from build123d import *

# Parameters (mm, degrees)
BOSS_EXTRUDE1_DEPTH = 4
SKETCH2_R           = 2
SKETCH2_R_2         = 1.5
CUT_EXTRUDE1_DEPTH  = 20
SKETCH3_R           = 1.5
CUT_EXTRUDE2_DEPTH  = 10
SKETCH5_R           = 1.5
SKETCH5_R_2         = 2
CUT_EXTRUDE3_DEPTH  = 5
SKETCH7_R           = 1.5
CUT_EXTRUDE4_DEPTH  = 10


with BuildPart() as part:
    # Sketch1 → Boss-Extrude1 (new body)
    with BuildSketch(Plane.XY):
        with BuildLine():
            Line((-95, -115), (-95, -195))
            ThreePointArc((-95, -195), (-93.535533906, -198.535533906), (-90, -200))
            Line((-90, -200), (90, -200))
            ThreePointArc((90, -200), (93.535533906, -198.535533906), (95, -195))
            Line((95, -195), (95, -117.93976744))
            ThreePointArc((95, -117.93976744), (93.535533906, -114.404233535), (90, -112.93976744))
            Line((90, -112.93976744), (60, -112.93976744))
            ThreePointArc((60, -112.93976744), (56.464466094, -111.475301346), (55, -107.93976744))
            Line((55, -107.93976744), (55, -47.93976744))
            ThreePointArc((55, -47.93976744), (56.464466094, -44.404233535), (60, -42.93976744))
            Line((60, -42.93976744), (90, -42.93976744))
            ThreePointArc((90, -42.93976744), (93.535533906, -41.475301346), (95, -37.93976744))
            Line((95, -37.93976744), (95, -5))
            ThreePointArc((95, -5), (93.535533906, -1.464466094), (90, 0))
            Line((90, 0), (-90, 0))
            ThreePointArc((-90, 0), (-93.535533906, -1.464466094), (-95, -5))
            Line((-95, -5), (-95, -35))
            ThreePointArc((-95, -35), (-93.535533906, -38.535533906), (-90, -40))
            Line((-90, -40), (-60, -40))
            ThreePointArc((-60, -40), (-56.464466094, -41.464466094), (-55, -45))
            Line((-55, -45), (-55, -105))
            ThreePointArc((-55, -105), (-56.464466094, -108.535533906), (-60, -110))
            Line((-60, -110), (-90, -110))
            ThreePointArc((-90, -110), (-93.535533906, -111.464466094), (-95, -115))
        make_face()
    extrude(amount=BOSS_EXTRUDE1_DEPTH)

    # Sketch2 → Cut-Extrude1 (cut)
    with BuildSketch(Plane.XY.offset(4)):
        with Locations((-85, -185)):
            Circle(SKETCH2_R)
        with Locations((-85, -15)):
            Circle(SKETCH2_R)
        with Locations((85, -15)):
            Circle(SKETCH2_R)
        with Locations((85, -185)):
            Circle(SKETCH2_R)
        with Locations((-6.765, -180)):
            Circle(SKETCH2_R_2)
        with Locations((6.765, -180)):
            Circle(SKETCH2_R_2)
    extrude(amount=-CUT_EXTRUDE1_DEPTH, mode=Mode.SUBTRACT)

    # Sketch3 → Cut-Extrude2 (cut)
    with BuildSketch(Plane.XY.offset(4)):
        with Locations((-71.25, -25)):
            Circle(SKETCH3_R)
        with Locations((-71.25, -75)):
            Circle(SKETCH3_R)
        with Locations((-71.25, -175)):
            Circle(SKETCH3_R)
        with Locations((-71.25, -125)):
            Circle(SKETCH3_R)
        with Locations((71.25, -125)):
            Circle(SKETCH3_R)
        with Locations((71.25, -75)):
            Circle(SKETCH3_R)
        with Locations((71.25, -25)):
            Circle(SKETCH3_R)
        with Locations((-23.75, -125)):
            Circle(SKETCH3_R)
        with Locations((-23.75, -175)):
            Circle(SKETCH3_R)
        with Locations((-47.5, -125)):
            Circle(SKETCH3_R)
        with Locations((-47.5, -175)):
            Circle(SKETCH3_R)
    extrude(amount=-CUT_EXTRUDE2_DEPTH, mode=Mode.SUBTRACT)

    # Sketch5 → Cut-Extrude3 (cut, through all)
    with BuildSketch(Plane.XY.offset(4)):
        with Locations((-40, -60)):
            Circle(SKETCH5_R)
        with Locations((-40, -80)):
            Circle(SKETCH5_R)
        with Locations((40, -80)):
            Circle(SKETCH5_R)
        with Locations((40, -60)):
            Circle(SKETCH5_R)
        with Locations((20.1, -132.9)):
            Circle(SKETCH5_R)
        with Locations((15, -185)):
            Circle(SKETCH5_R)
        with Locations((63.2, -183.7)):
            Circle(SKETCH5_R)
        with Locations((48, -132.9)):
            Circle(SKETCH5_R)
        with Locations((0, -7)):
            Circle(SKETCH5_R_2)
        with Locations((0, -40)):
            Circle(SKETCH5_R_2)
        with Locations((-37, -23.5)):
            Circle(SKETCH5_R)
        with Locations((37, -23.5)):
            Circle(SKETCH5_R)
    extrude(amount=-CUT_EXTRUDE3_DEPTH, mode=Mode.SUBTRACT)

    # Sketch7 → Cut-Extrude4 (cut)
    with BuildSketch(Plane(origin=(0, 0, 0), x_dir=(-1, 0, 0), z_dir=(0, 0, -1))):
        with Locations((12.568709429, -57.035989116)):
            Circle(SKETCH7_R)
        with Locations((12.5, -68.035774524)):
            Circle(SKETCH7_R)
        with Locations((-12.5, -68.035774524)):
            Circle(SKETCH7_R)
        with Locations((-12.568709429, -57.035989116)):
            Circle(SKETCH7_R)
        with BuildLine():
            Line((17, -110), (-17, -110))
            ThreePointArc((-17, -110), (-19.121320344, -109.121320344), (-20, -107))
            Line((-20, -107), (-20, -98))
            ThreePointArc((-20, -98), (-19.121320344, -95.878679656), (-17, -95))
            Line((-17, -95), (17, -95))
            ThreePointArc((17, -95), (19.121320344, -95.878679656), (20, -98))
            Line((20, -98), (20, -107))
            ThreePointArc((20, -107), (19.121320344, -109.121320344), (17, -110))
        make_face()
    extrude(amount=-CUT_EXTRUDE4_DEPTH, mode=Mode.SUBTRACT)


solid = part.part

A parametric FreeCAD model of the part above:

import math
import FreeCAD as App
import Part
import Sketcher

doc = App.newDocument("Part")
body = doc.addObject("PartDesign::Body", "Body")

# Sketch on XY plane
sketch1 = body.newObject("Sketcher::SketchObject", "Sketch")
sketch1.AttachmentSupport = (doc.getObject("XY_Plane"), [""])
sketch1.MapMode = "FlatFace"
sketch1.addGeometry(Part.LineSegment(App.Vector(-95, -115, 0), App.Vector(-95, -195, 0)), False)
sketch1.addGeometry(Part.ArcOfCircle(Part.Circle(App.Vector(-90, -195, 0), App.Vector(0, 0, 1), 5), math.radians(180), math.radians(270)), False)
sketch1.addGeometry(Part.LineSegment(App.Vector(-90, -200, 0), App.Vector(90, -200, 0)), False)
sketch1.addGeometry(Part.ArcOfCircle(Part.Circle(App.Vector(90, -195, 0), App.Vector(0, 0, 1), 5), math.radians(-90), math.radians(0)), False)
sketch1.addGeometry(Part.LineSegment(App.Vector(95, -195, 0), App.Vector(95, -118, 0)), False)
sketch1.addGeometry(Part.ArcOfCircle(Part.Circle(App.Vector(90, -118, 0), App.Vector(0, 0, 1), 5), math.radians(0), math.radians(90)), False)
sketch1.addGeometry(Part.LineSegment(App.Vector(90, -113, 0), App.Vector(60, -113, 0)), False)
sketch1.addGeometry(Part.ArcOfCircle(Part.Circle(App.Vector(60, -108, 0), App.Vector(0, 0, 1), 5), math.radians(180), math.radians(270)), False)
sketch1.addGeometry(Part.LineSegment(App.Vector(55, -108, 0), App.Vector(55, -48, 0)), False)
sketch1.addGeometry(Part.ArcOfCircle(Part.Circle(App.Vector(60, -48, 0), App.Vector(0, 0, 1), 5), math.radians(90), math.radians(180)), False)
sketch1.addGeometry(Part.LineSegment(App.Vector(60, -43, 0), App.Vector(90, -43, 0)), False)
sketch1.addGeometry(Part.ArcOfCircle(Part.Circle(App.Vector(90, -38, 0), App.Vector(0, 0, 1), 5), math.radians(-90), math.radians(0)), False)
sketch1.addGeometry(Part.LineSegment(App.Vector(95, -38, 0), App.Vector(95, -5, 0)), False)
sketch1.addGeometry(Part.ArcOfCircle(Part.Circle(App.Vector(90, -5, 0), App.Vector(0, 0, 1), 5), math.radians(0), math.radians(90)), False)
sketch1.addGeometry(Part.LineSegment(App.Vector(90, 0, 0), App.Vector(-90, 0, 0)), False)
sketch1.addGeometry(Part.ArcOfCircle(Part.Circle(App.Vector(-90, -5, 0), App.Vector(0, 0, 1), 5), math.radians(90), math.radians(180)), False)
sketch1.addGeometry(Part.LineSegment(App.Vector(-95, -5, 0), App.Vector(-95, -35, 0)), False)
sketch1.addGeometry(Part.ArcOfCircle(Part.Circle(App.Vector(-90, -35, 0), App.Vector(0, 0, 1), 5), math.radians(180), math.radians(270)), False)
sketch1.addGeometry(Part.LineSegment(App.Vector(-90, -40, 0), App.Vector(-60, -40, 0)), False)
sketch1.addGeometry(Part.ArcOfCircle(Part.Circle(App.Vector(-60, -45, 0), App.Vector(0, 0, 1), 5), math.radians(0), math.radians(90)), False)
sketch1.addGeometry(Part.LineSegment(App.Vector(-55, -45, 0), App.Vector(-55, -105, 0)), False)
sketch1.addGeometry(Part.ArcOfCircle(Part.Circle(App.Vector(-60, -105, 0), App.Vector(0, 0, 1), 5), math.radians(-90), math.radians(0)), False)
sketch1.addGeometry(Part.LineSegment(App.Vector(-60, -110, 0), App.Vector(-90, -110, 0)), False)
sketch1.addGeometry(Part.ArcOfCircle(Part.Circle(App.Vector(-90, -115, 0), App.Vector(0, 0, 1), 5), math.radians(90), math.radians(180)), False)
sketch1.addConstraint(Sketcher.Constraint("Tangent", 0, 2, 1, 1))
sketch1.addConstraint(Sketcher.Constraint("Tangent", 1, 2, 2, 1))
sketch1.addConstraint(Sketcher.Constraint("Tangent", 2, 2, 3, 1))
sketch1.addConstraint(Sketcher.Constraint("Tangent", 3, 2, 4, 1))
sketch1.addConstraint(Sketcher.Constraint("Tangent", 4, 2, 5, 1))
sketch1.addConstraint(Sketcher.Constraint("Tangent", 5, 2, 6, 1))
sketch1.addConstraint(Sketcher.Constraint("Tangent", 6, 2, 7, 2))
sketch1.addConstraint(Sketcher.Constraint("Tangent", 7, 1, 8, 1))
sketch1.addConstraint(Sketcher.Constraint("Tangent", 8, 2, 9, 2))
sketch1.addConstraint(Sketcher.Constraint("Tangent", 9, 1, 10, 1))
sketch1.addConstraint(Sketcher.Constraint("Tangent", 10, 2, 11, 1))
sketch1.addConstraint(Sketcher.Constraint("Tangent", 11, 2, 12, 1))
sketch1.addConstraint(Sketcher.Constraint("Tangent", 12, 2, 13, 1))
sketch1.addConstraint(Sketcher.Constraint("Tangent", 13, 2, 14, 1))
sketch1.addConstraint(Sketcher.Constraint("Tangent", 14, 2, 15, 1))
sketch1.addConstraint(Sketcher.Constraint("Tangent", 15, 2, 16, 1))
sketch1.addConstraint(Sketcher.Constraint("Tangent", 16, 2, 17, 1))
sketch1.addConstraint(Sketcher.Constraint("Tangent", 17, 2, 18, 1))
sketch1.addConstraint(Sketcher.Constraint("Tangent", 18, 2, 19, 2))
sketch1.addConstraint(Sketcher.Constraint("Tangent", 19, 1, 20, 1))
sketch1.addConstraint(Sketcher.Constraint("Tangent", 20, 2, 21, 2))
sketch1.addConstraint(Sketcher.Constraint("Tangent", 21, 1, 22, 1))
sketch1.addConstraint(Sketcher.Constraint("Tangent", 22, 2, 23, 1))
sketch1.addConstraint(Sketcher.Constraint("Tangent", 23, 2, 0, 1))
sketch1.addConstraint(Sketcher.Constraint("Vertical", 0))
sketch1.addConstraint(Sketcher.Constraint("Horizontal", 2))
sketch1.addConstraint(Sketcher.Constraint("Vertical", 4))
sketch1.addConstraint(Sketcher.Constraint("Horizontal", 6))
sketch1.addConstraint(Sketcher.Constraint("Vertical", 8))
sketch1.addConstraint(Sketcher.Constraint("Horizontal", 10))
sketch1.addConstraint(Sketcher.Constraint("Vertical", 12))
sketch1.addConstraint(Sketcher.Constraint("Horizontal", 14))
sketch1.addConstraint(Sketcher.Constraint("Vertical", 16))
sketch1.addConstraint(Sketcher.Constraint("Horizontal", 18))
sketch1.addConstraint(Sketcher.Constraint("Vertical", 20))
sketch1.addConstraint(Sketcher.Constraint("Horizontal", 22))
sketch1.addConstraint(Sketcher.Constraint("Equal", 1, 3))
sketch1.addConstraint(Sketcher.Constraint("Equal", 3, 5))
sketch1.addConstraint(Sketcher.Constraint("Equal", 5, 7))
sketch1.addConstraint(Sketcher.Constraint("Equal", 7, 9))
sketch1.addConstraint(Sketcher.Constraint("Equal", 9, 11))
sketch1.addConstraint(Sketcher.Constraint("Equal", 11, 13))
sketch1.addConstraint(Sketcher.Constraint("Equal", 13, 15))
sketch1.addConstraint(Sketcher.Constraint("Equal", 15, 17))
sketch1.addConstraint(Sketcher.Constraint("Equal", 17, 19))
sketch1.addConstraint(Sketcher.Constraint("Equal", 19, 21))
sketch1.addConstraint(Sketcher.Constraint("Equal", 21, 23))
sketch1.addConstraint(Sketcher.Constraint("Symmetric", 13, 2, 14, 2, -1, 1))
sketch1.addConstraint(Sketcher.Constraint("Vertical", 5, 3, 11, 3))
sketch1.addConstraint(Sketcher.Constraint("Vertical", 1, 3, 15, 3))
sketch1.addConstraint(Sketcher.Constraint("Equal", 10, 18))
sketch1.addConstraint(Sketcher.Constraint("Equal", 22, 16))
sketch1.addConstraint(Sketcher.Constraint("Equal", 8, 20))
sketch1.addConstraint(Sketcher.Constraint("Radius", 1, 5.0))
sketch1.addConstraint(Sketcher.Constraint("DistanceX", 2, 1, 2, 2, 180.0))
sketch1.addConstraint(Sketcher.Constraint("DistanceX", 6, 2, 6, 1, 30.0))
sketch1.addConstraint(Sketcher.Constraint("DistanceY", 0, 2, 0, 1, 80.0))
sketch1.addConstraint(Sketcher.Constraint("DistanceY", 8, 1, 8, 2, 60.0))
sketch1.addConstraint(Sketcher.Constraint("DistanceY", 4, 1, 4, 2, 77.060233))
pad1 = body.newObject("PartDesign::Pad", "Pad")
pad1.Profile = sketch1
pad1.Length = 4

# Sketch on XY plane
sketch2 = body.newObject("Sketcher::SketchObject", "Sketch001")
sketch2.AttachmentSupport = (doc.getObject("XY_Plane"), [""])
sketch2.MapMode = "FlatFace"
sketch2.AttachmentOffset = App.Placement(App.Vector(0, 0, 4), App.Rotation())
sketch2.addGeometry(Part.Circle(App.Vector(-85, -185, 0), App.Vector(0, 0, 1), 2), False)
sketch2.addGeometry(Part.Circle(App.Vector(-85, -15, 0), App.Vector(0, 0, 1), 2), False)
sketch2.addGeometry(Part.Circle(App.Vector(85, -15, 0), App.Vector(0, 0, 1), 2), False)
sketch2.addGeometry(Part.Circle(App.Vector(85, -185, 0), App.Vector(0, 0, 1), 2), False)
sketch2.addGeometry(Part.Circle(App.Vector(-6.8, -180, 0), App.Vector(0, 0, 1), 1.5), False)
sketch2.addGeometry(Part.Circle(App.Vector(6.8, -180, 0), App.Vector(0, 0, 1), 1.5), False)
sketch2.addConstraint(Sketcher.Constraint("Equal", 0, 1))
sketch2.addConstraint(Sketcher.Constraint("Equal", 1, 2))
sketch2.addConstraint(Sketcher.Constraint("Equal", 2, 3))
sketch2.addConstraint(Sketcher.Constraint("Equal", 4, 5))
sketch2.addConstraint(Sketcher.Constraint("Symmetric", 1, 3, 2, 3, -2))
sketch2.addConstraint(Sketcher.Constraint("Symmetric", 0, 3, 3, 3, -2))
sketch2.addConstraint(Sketcher.Constraint("Symmetric", 4, 3, 5, 3, -2))
sketch2.addConstraint(Sketcher.Constraint("Vertical", 0, 3, 1, 3))
sketch2.addConstraint(Sketcher.Constraint("Diameter", 0, 4.0))
sketch2.addConstraint(Sketcher.Constraint("Diameter", 4, 3.0))
sketch2.addConstraint(Sketcher.Constraint("DistanceX", 0, 3, -1, 1, 85.0))
sketch2.addConstraint(Sketcher.Constraint("DistanceY", 0, 3, -1, 1, 185.0))
sketch2.addConstraint(Sketcher.Constraint("DistanceY", 1, 3, -1, 1, 15.0))
sketch2.addConstraint(Sketcher.Constraint("DistanceY", 4, 3, -1, 1, 180.0))
sketch2.addConstraint(Sketcher.Constraint("DistanceX", 4, 3, 5, 3, 13.53))
pocket1 = body.newObject("PartDesign::Pocket", "Pocket")
pocket1.Profile = sketch2
pocket1.Length = 20

# Sketch on XY plane
sketch3 = body.newObject("Sketcher::SketchObject", "Sketch002")
sketch3.AttachmentSupport = (doc.getObject("XY_Plane"), [""])
sketch3.MapMode = "FlatFace"
sketch3.AttachmentOffset = App.Placement(App.Vector(0, 0, 4), App.Rotation())
sketch3.addGeometry(Part.Circle(App.Vector(-71.2, -25, 0), App.Vector(0, 0, 1), 1.5), False)
sketch3.addGeometry(Part.Circle(App.Vector(-71.2, -75, 0), App.Vector(0, 0, 1), 1.5), False)
sketch3.addGeometry(Part.Circle(App.Vector(-71.2, -175, 0), App.Vector(0, 0, 1), 1.5), False)
sketch3.addGeometry(Part.Circle(App.Vector(-71.2, -125, 0), App.Vector(0, 0, 1), 1.5), False)
sketch3.addGeometry(Part.Circle(App.Vector(71.2, -125, 0), App.Vector(0, 0, 1), 1.5), False)
sketch3.addGeometry(Part.Circle(App.Vector(71.2, -75, 0), App.Vector(0, 0, 1), 1.5), False)
sketch3.addGeometry(Part.Circle(App.Vector(71.2, -25, 0), App.Vector(0, 0, 1), 1.5), False)
sketch3.addGeometry(Part.Circle(App.Vector(-23.8, -125, 0), App.Vector(0, 0, 1), 1.5), False)
sketch3.addGeometry(Part.Circle(App.Vector(-23.8, -175, 0), App.Vector(0, 0, 1), 1.5), False)
sketch3.addGeometry(Part.Circle(App.Vector(-47.5, -125, 0), App.Vector(0, 0, 1), 1.5), False)
sketch3.addGeometry(Part.Circle(App.Vector(-47.5, -175, 0), App.Vector(0, 0, 1), 1.5), False)
sketch3.addConstraint(Sketcher.Constraint("Equal", 0, 1))
sketch3.addConstraint(Sketcher.Constraint("Equal", 1, 2))
sketch3.addConstraint(Sketcher.Constraint("Equal", 2, 3))
sketch3.addConstraint(Sketcher.Constraint("Equal", 3, 4))
sketch3.addConstraint(Sketcher.Constraint("Equal", 4, 5))
sketch3.addConstraint(Sketcher.Constraint("Equal", 5, 6))
sketch3.addConstraint(Sketcher.Constraint("Equal", 6, 7))
sketch3.addConstraint(Sketcher.Constraint("Equal", 7, 8))
sketch3.addConstraint(Sketcher.Constraint("Equal", 8, 9))
sketch3.addConstraint(Sketcher.Constraint("Equal", 9, 10))
sketch3.addConstraint(Sketcher.Constraint("Symmetric", 3, 3, 4, 3, -2))
sketch3.addConstraint(Sketcher.Constraint("Symmetric", 1, 3, 5, 3, -2))
sketch3.addConstraint(Sketcher.Constraint("Symmetric", 0, 3, 6, 3, -2))
sketch3.addConstraint(Sketcher.Constraint("Horizontal", 4, 3, 7, 3))
sketch3.addConstraint(Sketcher.Constraint("Horizontal", 2, 3, 8, 3))
sketch3.addConstraint(Sketcher.Constraint("Horizontal", 7, 3, 9, 3))
sketch3.addConstraint(Sketcher.Constraint("Horizontal", 8, 3, 10, 3))
sketch3.addConstraint(Sketcher.Constraint("Vertical", 0, 3, 1, 3))
sketch3.addConstraint(Sketcher.Constraint("Vertical", 1, 3, 2, 3))
sketch3.addConstraint(Sketcher.Constraint("Vertical", 2, 3, 3, 3))
sketch3.addConstraint(Sketcher.Constraint("Vertical", 7, 3, 8, 3))
sketch3.addConstraint(Sketcher.Constraint("Vertical", 9, 3, 10, 3))
sketch3.addConstraint(Sketcher.Constraint("Diameter", 0, 3.0))
sketch3.addConstraint(Sketcher.Constraint("DistanceY", 0, 3, -1, 1, 25.0))
sketch3.addConstraint(Sketcher.Constraint("DistanceY", 1, 3, -1, 1, 75.0))
sketch3.addConstraint(Sketcher.Constraint("DistanceY", 2, 3, -1, 1, 175.0))
sketch3.addConstraint(Sketcher.Constraint("DistanceY", 3, 3, -1, 1, 125.0))
sketch3.addConstraint(Sketcher.Constraint("DistanceX", 7, 3, 4, 3, 95.0))
sketch3.addConstraint(Sketcher.Constraint("DistanceX", 9, 3, -1, 1, 47.5))
sketch3.addConstraint(Sketcher.Constraint("DistanceX", 3, 3, 4, 3, 142.5))
pocket2 = body.newObject("PartDesign::Pocket", "Pocket001")
pocket2.Profile = sketch3
pocket2.Length = 10

# Sketch on XY plane
sketch4 = body.newObject("Sketcher::SketchObject", "Sketch003")
sketch4.AttachmentSupport = (doc.getObject("XY_Plane"), [""])
sketch4.MapMode = "FlatFace"
sketch4.AttachmentOffset = App.Placement(App.Vector(0, 0, 4), App.Rotation())
sketch4.addGeometry(Part.Circle(App.Vector(-40, -60, 0), App.Vector(0, 0, 1), 1.5), False)
sketch4.addGeometry(Part.Circle(App.Vector(-40, -80, 0), App.Vector(0, 0, 1), 1.5), False)
sketch4.addGeometry(Part.Circle(App.Vector(40, -80, 0), App.Vector(0, 0, 1), 1.5), False)
sketch4.addGeometry(Part.Circle(App.Vector(40, -60, 0), App.Vector(0, 0, 1), 1.5), False)
sketch4.addGeometry(Part.Circle(App.Vector(20.1, -132.9, 0), App.Vector(0, 0, 1), 1.5), False)
sketch4.addGeometry(Part.Circle(App.Vector(15, -185, 0), App.Vector(0, 0, 1), 1.5), False)
sketch4.addGeometry(Part.Circle(App.Vector(63.2, -183.7, 0), App.Vector(0, 0, 1), 1.5), False)
sketch4.addGeometry(Part.Circle(App.Vector(48, -132.9, 0), App.Vector(0, 0, 1), 1.5), False)
sketch4.addGeometry(Part.Circle(App.Vector(0, -7, 0), App.Vector(0, 0, 1), 2), False)
sketch4.addGeometry(Part.Circle(App.Vector(0, -40, 0), App.Vector(0, 0, 1), 2), False)
sketch4.addGeometry(Part.Circle(App.Vector(-37, -23.5, 0), App.Vector(0, 0, 1), 1.5), False)
sketch4.addGeometry(Part.Circle(App.Vector(37, -23.5, 0), App.Vector(0, 0, 1), 1.5), False)
sketch4.addConstraint(Sketcher.Constraint("Equal", 0, 1))
sketch4.addConstraint(Sketcher.Constraint("Equal", 1, 2))
sketch4.addConstraint(Sketcher.Constraint("Equal", 2, 3))
sketch4.addConstraint(Sketcher.Constraint("Equal", 3, 4))
sketch4.addConstraint(Sketcher.Constraint("Equal", 4, 5))
sketch4.addConstraint(Sketcher.Constraint("Equal", 5, 6))
sketch4.addConstraint(Sketcher.Constraint("Equal", 6, 7))
sketch4.addConstraint(Sketcher.Constraint("Equal", 8, 9))
sketch4.addConstraint(Sketcher.Constraint("Equal", 7, 10))
sketch4.addConstraint(Sketcher.Constraint("Equal", 10, 11))
sketch4.addConstraint(Sketcher.Constraint("Symmetric", 1, 3, 2, 3, -2))
sketch4.addConstraint(Sketcher.Constraint("Symmetric", 0, 3, 3, 3, -2))
sketch4.addConstraint(Sketcher.Constraint("Symmetric", 10, 3, 11, 3, -2))
sketch4.addConstraint(Sketcher.Constraint("PointOnObject", 8, 3, -2))
sketch4.addConstraint(Sketcher.Constraint("PointOnObject", 9, 3, -2))
sketch4.addConstraint(Sketcher.Constraint("Horizontal", 4, 3, 7, 3))
sketch4.addConstraint(Sketcher.Constraint("Vertical", 0, 3, 1, 3))
sketch4.addConstraint(Sketcher.Constraint("Diameter", 0, 3.0))
sketch4.addConstraint(Sketcher.Constraint("Diameter", 8, 4.0))
sketch4.addConstraint(Sketcher.Constraint("DistanceX", 0, 3, -1, 1, 40.0))
sketch4.addConstraint(Sketcher.Constraint("DistanceY", 0, 3, -1, 1, 60.0))
sketch4.addConstraint(Sketcher.Constraint("DistanceY", 1, 3, -1, 1, 80.0))
sketch4.addConstraint(Sketcher.Constraint("DistanceX", -1, 1, 5, 3, 15.0))
sketch4.addConstraint(Sketcher.Constraint("DistanceY", 5, 3, -1, 1, 185.0))
sketch4.addConstraint(Sketcher.Constraint("DistanceX", -1, 1, 7, 3, 48.0))
sketch4.addConstraint(Sketcher.Constraint("DistanceY", 8, 3, -1, 1, 7.0))
sketch4.addConstraint(Sketcher.Constraint("DistanceY", 9, 3, -1, 1, 40.0))
sketch4.addConstraint(Sketcher.Constraint("DistanceX", 10, 3, -1, 1, 37.0))
sketch4.addConstraint(Sketcher.Constraint("DistanceX", -1, 1, 4, 3, 20.1))
sketch4.addConstraint(Sketcher.Constraint("DistanceY", 4, 3, -1, 1, 132.9))
sketch4.addConstraint(Sketcher.Constraint("DistanceX", -1, 1, 6, 3, 63.2))
sketch4.addConstraint(Sketcher.Constraint("DistanceY", 6, 3, -1, 1, 183.7))
sketch4.addConstraint(Sketcher.Constraint("DistanceY", 10, 3, -1, 1, 23.5))
pocket3 = body.newObject("PartDesign::Pocket", "Pocket002")
pocket3.Profile = sketch4
pocket3.Type = "ThroughAll"

# Sketch on XY plane
sketch5 = body.newObject("Sketcher::SketchObject", "Sketch004")
sketch5.AttachmentSupport = (doc.getObject("XY_Plane"), [""])
sketch5.MapMode = "FlatFace"
sketch5.addGeometry(Part.Circle(App.Vector(-12.6, -57, 0), App.Vector(0, 0, 1), 1.5), False)
sketch5.addGeometry(Part.Circle(App.Vector(-12.5, -68, 0), App.Vector(0, 0, 1), 1.5), False)
sketch5.addGeometry(Part.Circle(App.Vector(12.5, -68, 0), App.Vector(0, 0, 1), 1.5), False)
sketch5.addGeometry(Part.Circle(App.Vector(12.6, -57, 0), App.Vector(0, 0, 1), 1.5), False)
sketch5.addGeometry(Part.LineSegment(App.Vector(17, -110, 0), App.Vector(-17, -110, 0)), False)
sketch5.addGeometry(Part.ArcOfCircle(Part.Circle(App.Vector(-17, -107, 0), App.Vector(0, 0, 1), 3), math.radians(180), math.radians(270)), False)
sketch5.addGeometry(Part.LineSegment(App.Vector(-20, -107, 0), App.Vector(-20, -98, 0)), False)
sketch5.addGeometry(Part.ArcOfCircle(Part.Circle(App.Vector(-17, -98, 0), App.Vector(0, 0, 1), 3), math.radians(90), math.radians(180)), False)
sketch5.addGeometry(Part.LineSegment(App.Vector(-17, -95, 0), App.Vector(17, -95, 0)), False)
sketch5.addGeometry(Part.ArcOfCircle(Part.Circle(App.Vector(17, -98, 0), App.Vector(0, 0, 1), 3), math.radians(0), math.radians(90)), False)
sketch5.addGeometry(Part.LineSegment(App.Vector(20, -98, 0), App.Vector(20, -107, 0)), False)
sketch5.addGeometry(Part.ArcOfCircle(Part.Circle(App.Vector(17, -107, 0), App.Vector(0, 0, 1), 3), math.radians(-90), math.radians(0)), False)
sketch5.addConstraint(Sketcher.Constraint("Tangent", 4, 2, 5, 2))
sketch5.addConstraint(Sketcher.Constraint("Tangent", 5, 1, 6, 1))
sketch5.addConstraint(Sketcher.Constraint("Tangent", 6, 2, 7, 2))
sketch5.addConstraint(Sketcher.Constraint("Tangent", 7, 1, 8, 1))
sketch5.addConstraint(Sketcher.Constraint("Tangent", 8, 2, 9, 2))
sketch5.addConstraint(Sketcher.Constraint("Tangent", 9, 1, 10, 1))
sketch5.addConstraint(Sketcher.Constraint("Tangent", 10, 2, 11, 2))
sketch5.addConstraint(Sketcher.Constraint("Tangent", 11, 1, 4, 1))
sketch5.addConstraint(Sketcher.Constraint("Horizontal", 4))
sketch5.addConstraint(Sketcher.Constraint("Vertical", 6))
sketch5.addConstraint(Sketcher.Constraint("Horizontal", 8))
sketch5.addConstraint(Sketcher.Constraint("Vertical", 10))
sketch5.addConstraint(Sketcher.Constraint("Equal", 0, 1))
sketch5.addConstraint(Sketcher.Constraint("Equal", 1, 2))
sketch5.addConstraint(Sketcher.Constraint("Equal", 2, 3))
sketch5.addConstraint(Sketcher.Constraint("Equal", 5, 7))
sketch5.addConstraint(Sketcher.Constraint("Equal", 7, 9))
sketch5.addConstraint(Sketcher.Constraint("Equal", 9, 11))
sketch5.addConstraint(Sketcher.Constraint("Symmetric", 1, 3, 2, 3, -2))
sketch5.addConstraint(Sketcher.Constraint("Symmetric", 0, 3, 3, 3, -2))
sketch5.addConstraint(Sketcher.Constraint("Diameter", 0, 3.0))
sketch5.addConstraint(Sketcher.Constraint("Radius", 5, 3.0))
sketch5.addConstraint(Sketcher.Constraint("DistanceX", 4, 2, 4, 1, 34.0))
sketch5.addConstraint(Sketcher.Constraint("DistanceY", 6, 1, 6, 2, 9.0))
sketch5.addConstraint(Sketcher.Constraint("DistanceX", 5, 3, -1, 1, 17.0))
sketch5.addConstraint(Sketcher.Constraint("DistanceY", 5, 3, -1, 1, 107.0))
sketch5.addConstraint(Sketcher.Constraint("DistanceX", 1, 3, 2, 3, 25.0))
sketch5.addConstraint(Sketcher.Constraint("DistanceX", 0, 3, -1, 1, 12.568709))
sketch5.addConstraint(Sketcher.Constraint("DistanceY", 0, 3, -1, 1, 57.035989))
sketch5.addConstraint(Sketcher.Constraint("DistanceY", 1, 3, -1, 1, 68.035775))
pocket4 = body.newObject("PartDesign::Pocket", "Pocket003")
pocket4.Profile = sketch5
pocket4.Length = 10
pocket4.Reversed = True

doc.recompute()
